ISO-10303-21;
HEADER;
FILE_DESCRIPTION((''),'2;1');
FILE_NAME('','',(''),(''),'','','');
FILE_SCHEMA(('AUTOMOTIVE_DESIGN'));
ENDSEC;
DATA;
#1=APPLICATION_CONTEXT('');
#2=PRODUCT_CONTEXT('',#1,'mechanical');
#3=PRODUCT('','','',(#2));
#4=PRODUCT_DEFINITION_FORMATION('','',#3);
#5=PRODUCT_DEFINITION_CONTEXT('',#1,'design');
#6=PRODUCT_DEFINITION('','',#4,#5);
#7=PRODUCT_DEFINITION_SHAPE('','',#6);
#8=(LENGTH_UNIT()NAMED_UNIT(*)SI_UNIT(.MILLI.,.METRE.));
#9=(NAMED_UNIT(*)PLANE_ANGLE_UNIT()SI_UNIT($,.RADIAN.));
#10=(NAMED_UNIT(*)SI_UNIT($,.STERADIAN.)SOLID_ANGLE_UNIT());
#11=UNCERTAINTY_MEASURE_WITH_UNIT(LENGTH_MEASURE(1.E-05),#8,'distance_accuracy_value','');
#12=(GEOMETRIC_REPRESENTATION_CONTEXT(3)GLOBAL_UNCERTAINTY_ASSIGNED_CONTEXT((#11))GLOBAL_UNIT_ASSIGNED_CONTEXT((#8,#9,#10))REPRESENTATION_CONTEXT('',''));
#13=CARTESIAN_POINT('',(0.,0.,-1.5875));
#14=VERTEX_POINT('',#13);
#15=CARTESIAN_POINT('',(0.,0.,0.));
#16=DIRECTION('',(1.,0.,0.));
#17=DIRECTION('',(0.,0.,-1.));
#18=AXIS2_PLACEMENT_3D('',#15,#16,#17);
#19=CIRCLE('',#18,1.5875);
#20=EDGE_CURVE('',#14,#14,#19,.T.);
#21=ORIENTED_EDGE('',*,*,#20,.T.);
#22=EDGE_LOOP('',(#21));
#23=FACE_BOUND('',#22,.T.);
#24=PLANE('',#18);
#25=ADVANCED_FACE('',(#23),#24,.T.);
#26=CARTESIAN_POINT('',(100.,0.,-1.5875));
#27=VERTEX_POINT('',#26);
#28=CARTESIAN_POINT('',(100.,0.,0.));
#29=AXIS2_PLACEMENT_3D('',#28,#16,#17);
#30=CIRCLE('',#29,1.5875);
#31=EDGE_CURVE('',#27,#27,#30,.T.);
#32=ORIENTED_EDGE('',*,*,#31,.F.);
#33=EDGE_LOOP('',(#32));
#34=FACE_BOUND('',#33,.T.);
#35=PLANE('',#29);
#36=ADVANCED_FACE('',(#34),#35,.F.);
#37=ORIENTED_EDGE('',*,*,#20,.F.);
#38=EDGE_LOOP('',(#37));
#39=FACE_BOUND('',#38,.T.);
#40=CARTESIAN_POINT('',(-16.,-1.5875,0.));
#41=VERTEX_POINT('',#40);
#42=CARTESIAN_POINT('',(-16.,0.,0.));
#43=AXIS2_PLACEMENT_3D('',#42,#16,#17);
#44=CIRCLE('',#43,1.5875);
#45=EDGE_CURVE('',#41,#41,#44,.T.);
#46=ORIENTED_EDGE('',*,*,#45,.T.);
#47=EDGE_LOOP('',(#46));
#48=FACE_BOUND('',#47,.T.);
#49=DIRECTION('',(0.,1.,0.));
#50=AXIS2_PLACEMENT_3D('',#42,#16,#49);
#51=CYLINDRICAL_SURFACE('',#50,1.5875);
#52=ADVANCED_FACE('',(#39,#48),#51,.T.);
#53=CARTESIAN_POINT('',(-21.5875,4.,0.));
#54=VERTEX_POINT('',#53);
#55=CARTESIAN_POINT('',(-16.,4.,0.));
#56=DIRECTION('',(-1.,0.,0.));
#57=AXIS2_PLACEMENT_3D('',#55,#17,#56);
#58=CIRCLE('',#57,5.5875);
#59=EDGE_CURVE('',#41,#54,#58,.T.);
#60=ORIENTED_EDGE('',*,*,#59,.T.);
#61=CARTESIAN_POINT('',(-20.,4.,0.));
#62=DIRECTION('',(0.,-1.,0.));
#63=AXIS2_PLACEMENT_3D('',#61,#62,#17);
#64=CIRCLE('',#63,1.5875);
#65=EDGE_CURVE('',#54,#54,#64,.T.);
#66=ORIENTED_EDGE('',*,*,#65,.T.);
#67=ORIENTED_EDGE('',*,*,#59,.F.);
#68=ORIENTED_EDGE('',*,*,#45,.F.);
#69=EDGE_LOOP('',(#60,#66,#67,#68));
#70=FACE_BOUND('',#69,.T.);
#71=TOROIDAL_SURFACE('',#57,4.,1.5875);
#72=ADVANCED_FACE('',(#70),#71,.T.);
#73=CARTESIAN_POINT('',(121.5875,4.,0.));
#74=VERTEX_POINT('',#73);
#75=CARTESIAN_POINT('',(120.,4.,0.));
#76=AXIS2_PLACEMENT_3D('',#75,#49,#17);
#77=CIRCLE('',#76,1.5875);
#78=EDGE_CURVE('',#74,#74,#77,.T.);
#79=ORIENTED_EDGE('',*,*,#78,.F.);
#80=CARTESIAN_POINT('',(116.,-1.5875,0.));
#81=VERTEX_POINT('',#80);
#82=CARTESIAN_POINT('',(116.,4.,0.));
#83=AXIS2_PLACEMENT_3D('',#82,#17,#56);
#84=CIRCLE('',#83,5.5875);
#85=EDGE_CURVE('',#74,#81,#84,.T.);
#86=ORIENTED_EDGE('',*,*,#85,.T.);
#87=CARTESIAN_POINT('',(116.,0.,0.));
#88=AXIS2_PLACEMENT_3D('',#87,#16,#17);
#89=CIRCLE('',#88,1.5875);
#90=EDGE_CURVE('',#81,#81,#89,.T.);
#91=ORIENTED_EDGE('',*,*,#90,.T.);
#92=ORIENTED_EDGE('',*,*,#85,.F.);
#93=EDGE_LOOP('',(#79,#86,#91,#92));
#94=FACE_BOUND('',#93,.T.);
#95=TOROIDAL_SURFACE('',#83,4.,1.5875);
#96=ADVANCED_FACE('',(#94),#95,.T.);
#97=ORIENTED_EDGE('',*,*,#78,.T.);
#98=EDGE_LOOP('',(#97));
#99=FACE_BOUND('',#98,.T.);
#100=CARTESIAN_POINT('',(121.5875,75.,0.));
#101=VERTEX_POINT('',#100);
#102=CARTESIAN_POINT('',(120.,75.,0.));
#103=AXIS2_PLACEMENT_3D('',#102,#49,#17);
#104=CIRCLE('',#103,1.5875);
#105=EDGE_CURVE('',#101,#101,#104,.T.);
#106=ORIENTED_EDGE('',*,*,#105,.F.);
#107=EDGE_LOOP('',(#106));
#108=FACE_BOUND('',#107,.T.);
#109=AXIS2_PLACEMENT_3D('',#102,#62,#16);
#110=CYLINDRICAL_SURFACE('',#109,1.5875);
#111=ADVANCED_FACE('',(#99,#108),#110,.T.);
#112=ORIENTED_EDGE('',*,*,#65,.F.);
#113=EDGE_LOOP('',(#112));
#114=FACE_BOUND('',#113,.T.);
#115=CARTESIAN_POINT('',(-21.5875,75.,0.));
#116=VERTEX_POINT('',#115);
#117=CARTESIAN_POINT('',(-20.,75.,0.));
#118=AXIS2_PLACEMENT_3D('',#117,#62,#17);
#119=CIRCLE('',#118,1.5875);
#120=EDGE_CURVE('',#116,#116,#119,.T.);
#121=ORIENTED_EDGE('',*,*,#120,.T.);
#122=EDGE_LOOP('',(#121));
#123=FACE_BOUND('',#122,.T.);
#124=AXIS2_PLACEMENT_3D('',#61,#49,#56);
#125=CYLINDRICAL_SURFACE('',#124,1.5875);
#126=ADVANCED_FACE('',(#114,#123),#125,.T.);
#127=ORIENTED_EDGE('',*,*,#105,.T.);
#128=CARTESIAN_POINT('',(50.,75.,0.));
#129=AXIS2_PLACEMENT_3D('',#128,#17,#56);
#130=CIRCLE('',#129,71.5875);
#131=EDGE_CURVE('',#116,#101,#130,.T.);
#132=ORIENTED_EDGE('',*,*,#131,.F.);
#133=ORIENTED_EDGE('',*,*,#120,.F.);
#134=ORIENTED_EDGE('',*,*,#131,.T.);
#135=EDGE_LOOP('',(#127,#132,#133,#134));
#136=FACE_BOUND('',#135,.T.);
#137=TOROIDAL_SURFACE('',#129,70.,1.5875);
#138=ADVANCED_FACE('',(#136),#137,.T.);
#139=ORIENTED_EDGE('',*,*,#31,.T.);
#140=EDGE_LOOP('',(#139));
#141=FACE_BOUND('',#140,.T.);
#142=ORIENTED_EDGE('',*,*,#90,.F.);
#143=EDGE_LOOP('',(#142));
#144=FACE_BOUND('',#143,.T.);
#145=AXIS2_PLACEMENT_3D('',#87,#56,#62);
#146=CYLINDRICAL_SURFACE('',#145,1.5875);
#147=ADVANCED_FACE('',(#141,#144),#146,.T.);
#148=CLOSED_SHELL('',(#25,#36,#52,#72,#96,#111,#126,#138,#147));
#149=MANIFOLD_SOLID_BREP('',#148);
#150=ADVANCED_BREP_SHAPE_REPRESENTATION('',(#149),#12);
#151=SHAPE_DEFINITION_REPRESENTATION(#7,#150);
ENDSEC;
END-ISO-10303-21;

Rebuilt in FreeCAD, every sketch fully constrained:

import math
import FreeCAD as App
import Part
import Sketcher
from FreeCAD import Vector
Q = App.Units.Quantity

doc = App.newDocument("Part")
params = doc.addObject("Spreadsheet::Sheet", "Params")
for row, (alias, value) in enumerate([
    ("sketch2_radius", "4 mm"),
    ("sketch2_radius2", "70 mm"),
    ("sketch2_width", "16 mm"),
    ("sketch2_height", "71 mm"),
], start=1):
    params.set(f"A{row}", alias)
    params.set(f"B{row}", "=" + value)
    params.setAlias(f"B{row}", alias)

body = doc.addObject("PartDesign::Body", "Body")

sketch1 = body.newObject("Sketcher::SketchObject", "Sketch")
sketch1.AttachmentSupport = (doc.getObject("YZ_Plane"), [""])
sketch1.MapMode = "FlatFace"
sketch1.addGeometry(Part.Circle(Vector(0, 0, 0), Vector(0, 0, 1), 1.6), False)
sketch1.addConstraint(Sketcher.Constraint("Coincident", 0, 3, -1, 1))
sketch1.addConstraint(Sketcher.Constraint("Diameter", 0, Q("3.175 mm")))

sketch2 = body.newObject("Sketcher::SketchObject", "Sketch001")
sketch2.AttachmentSupport = (doc.getObject("XY_Plane"), [""])
sketch2.MapMode = "FlatFace"
sketch2.addGeometry(Part.LineSegment(Vector(0, 0, 0), Vector(-16, 0, 0)), False)
sketch2.addGeometry(Part.ArcOfCircle(Part.Circle(Vector(-16, 4, 0), Vector(0, 0, 1), 4), math.radians(180), math.radians(270)), False)
sketch2.addGeometry(Part.LineSegment(Vector(-20, 4, 0), Vector(-20, 75, 0)), False)
sketch2.addGeometry(Part.ArcOfCircle(Part.Circle(Vector(50, 75, 0), Vector(0, 0, 1), 70), math.radians(0), math.radians(180)), False)
sketch2.addGeometry(Part.LineSegment(Vector(120, 75, 0), Vector(120, 4, 0)), False)
sketch2.addGeometry(Part.ArcOfCircle(Part.Circle(Vector(116, 4, 0), Vector(0, 0, 1), 4), math.radians(-90), math.radians(0)), False)
sketch2.addGeometry(Part.LineSegment(Vector(116, 0, 0), Vector(100, 0, 0)), False)
sketch2.addConstraint(Sketcher.Constraint("Tangent", 0, 2, 1, 2))
sketch2.addConstraint(Sketcher.Constraint("Tangent", 1, 1, 2, 1))
sketch2.addConstraint(Sketcher.Constraint("Tangent", 2, 2, 3, 2))
sketch2.addConstraint(Sketcher.Constraint("Tangent", 3, 1, 4, 1))
sketch2.addConstraint(Sketcher.Constraint("Tangent", 4, 2, 5, 2))
sketch2.addConstraint(Sketcher.Constraint("Tangent", 5, 1, 6, 1))
sketch2.addConstraint(Sketcher.Constraint("Horizontal", 0))
sketch2.addConstraint(Sketcher.Constraint("Vertical", 2))
sketch2.addConstraint(Sketcher.Constraint("Vertical", 4))
sketch2.addConstraint(Sketcher.Constraint("Horizontal", 6))
sketch2.addConstraint(Sketcher.Constraint("Coincident", 0, 1, -1, 1))
sketch2.addConstraint(Sketcher.Constraint("Equal", 1, 5))
sketch2.addConstraint(Sketcher.Constraint("PointOnObject", 5, 1, -1))
sketch2.addConstraint(Sketcher.Constraint("Equal", 0, 6))
sketch2.addConstraint(Sketcher.Constraint("Radius", 1, Q("4 mm")))
sketch2.addConstraint(Sketcher.Constraint("Radius", 3, Q("70 mm")))
sketch2.addConstraint(Sketcher.Constraint("DistanceX", 0, 2, 0, 1, Q("16 mm")))
sketch2.addConstraint(Sketcher.Constraint("DistanceY", 2, 1, 2, 2, Q("71 mm")))
sketch2.setExpression("Constraints[14]", "Params.sketch2_radius")
sketch2.setExpression("Constraints[15]", "Params.sketch2_radius2")
sketch2.setExpression("Constraints[16]", "Params.sketch2_width")
sketch2.setExpression("Constraints[17]", "Params.sketch2_height")
doc.recompute()

additivepipe = body.newObject("PartDesign::AdditivePipe", "AdditivePipe")
additivepipe.Profile = sketch1
additivepipe.Spine = (sketch2, ["Edge1", "Edge2", "Edge3", "Edge4", "Edge5", "Edge6", "Edge7"])

doc.recompute()
